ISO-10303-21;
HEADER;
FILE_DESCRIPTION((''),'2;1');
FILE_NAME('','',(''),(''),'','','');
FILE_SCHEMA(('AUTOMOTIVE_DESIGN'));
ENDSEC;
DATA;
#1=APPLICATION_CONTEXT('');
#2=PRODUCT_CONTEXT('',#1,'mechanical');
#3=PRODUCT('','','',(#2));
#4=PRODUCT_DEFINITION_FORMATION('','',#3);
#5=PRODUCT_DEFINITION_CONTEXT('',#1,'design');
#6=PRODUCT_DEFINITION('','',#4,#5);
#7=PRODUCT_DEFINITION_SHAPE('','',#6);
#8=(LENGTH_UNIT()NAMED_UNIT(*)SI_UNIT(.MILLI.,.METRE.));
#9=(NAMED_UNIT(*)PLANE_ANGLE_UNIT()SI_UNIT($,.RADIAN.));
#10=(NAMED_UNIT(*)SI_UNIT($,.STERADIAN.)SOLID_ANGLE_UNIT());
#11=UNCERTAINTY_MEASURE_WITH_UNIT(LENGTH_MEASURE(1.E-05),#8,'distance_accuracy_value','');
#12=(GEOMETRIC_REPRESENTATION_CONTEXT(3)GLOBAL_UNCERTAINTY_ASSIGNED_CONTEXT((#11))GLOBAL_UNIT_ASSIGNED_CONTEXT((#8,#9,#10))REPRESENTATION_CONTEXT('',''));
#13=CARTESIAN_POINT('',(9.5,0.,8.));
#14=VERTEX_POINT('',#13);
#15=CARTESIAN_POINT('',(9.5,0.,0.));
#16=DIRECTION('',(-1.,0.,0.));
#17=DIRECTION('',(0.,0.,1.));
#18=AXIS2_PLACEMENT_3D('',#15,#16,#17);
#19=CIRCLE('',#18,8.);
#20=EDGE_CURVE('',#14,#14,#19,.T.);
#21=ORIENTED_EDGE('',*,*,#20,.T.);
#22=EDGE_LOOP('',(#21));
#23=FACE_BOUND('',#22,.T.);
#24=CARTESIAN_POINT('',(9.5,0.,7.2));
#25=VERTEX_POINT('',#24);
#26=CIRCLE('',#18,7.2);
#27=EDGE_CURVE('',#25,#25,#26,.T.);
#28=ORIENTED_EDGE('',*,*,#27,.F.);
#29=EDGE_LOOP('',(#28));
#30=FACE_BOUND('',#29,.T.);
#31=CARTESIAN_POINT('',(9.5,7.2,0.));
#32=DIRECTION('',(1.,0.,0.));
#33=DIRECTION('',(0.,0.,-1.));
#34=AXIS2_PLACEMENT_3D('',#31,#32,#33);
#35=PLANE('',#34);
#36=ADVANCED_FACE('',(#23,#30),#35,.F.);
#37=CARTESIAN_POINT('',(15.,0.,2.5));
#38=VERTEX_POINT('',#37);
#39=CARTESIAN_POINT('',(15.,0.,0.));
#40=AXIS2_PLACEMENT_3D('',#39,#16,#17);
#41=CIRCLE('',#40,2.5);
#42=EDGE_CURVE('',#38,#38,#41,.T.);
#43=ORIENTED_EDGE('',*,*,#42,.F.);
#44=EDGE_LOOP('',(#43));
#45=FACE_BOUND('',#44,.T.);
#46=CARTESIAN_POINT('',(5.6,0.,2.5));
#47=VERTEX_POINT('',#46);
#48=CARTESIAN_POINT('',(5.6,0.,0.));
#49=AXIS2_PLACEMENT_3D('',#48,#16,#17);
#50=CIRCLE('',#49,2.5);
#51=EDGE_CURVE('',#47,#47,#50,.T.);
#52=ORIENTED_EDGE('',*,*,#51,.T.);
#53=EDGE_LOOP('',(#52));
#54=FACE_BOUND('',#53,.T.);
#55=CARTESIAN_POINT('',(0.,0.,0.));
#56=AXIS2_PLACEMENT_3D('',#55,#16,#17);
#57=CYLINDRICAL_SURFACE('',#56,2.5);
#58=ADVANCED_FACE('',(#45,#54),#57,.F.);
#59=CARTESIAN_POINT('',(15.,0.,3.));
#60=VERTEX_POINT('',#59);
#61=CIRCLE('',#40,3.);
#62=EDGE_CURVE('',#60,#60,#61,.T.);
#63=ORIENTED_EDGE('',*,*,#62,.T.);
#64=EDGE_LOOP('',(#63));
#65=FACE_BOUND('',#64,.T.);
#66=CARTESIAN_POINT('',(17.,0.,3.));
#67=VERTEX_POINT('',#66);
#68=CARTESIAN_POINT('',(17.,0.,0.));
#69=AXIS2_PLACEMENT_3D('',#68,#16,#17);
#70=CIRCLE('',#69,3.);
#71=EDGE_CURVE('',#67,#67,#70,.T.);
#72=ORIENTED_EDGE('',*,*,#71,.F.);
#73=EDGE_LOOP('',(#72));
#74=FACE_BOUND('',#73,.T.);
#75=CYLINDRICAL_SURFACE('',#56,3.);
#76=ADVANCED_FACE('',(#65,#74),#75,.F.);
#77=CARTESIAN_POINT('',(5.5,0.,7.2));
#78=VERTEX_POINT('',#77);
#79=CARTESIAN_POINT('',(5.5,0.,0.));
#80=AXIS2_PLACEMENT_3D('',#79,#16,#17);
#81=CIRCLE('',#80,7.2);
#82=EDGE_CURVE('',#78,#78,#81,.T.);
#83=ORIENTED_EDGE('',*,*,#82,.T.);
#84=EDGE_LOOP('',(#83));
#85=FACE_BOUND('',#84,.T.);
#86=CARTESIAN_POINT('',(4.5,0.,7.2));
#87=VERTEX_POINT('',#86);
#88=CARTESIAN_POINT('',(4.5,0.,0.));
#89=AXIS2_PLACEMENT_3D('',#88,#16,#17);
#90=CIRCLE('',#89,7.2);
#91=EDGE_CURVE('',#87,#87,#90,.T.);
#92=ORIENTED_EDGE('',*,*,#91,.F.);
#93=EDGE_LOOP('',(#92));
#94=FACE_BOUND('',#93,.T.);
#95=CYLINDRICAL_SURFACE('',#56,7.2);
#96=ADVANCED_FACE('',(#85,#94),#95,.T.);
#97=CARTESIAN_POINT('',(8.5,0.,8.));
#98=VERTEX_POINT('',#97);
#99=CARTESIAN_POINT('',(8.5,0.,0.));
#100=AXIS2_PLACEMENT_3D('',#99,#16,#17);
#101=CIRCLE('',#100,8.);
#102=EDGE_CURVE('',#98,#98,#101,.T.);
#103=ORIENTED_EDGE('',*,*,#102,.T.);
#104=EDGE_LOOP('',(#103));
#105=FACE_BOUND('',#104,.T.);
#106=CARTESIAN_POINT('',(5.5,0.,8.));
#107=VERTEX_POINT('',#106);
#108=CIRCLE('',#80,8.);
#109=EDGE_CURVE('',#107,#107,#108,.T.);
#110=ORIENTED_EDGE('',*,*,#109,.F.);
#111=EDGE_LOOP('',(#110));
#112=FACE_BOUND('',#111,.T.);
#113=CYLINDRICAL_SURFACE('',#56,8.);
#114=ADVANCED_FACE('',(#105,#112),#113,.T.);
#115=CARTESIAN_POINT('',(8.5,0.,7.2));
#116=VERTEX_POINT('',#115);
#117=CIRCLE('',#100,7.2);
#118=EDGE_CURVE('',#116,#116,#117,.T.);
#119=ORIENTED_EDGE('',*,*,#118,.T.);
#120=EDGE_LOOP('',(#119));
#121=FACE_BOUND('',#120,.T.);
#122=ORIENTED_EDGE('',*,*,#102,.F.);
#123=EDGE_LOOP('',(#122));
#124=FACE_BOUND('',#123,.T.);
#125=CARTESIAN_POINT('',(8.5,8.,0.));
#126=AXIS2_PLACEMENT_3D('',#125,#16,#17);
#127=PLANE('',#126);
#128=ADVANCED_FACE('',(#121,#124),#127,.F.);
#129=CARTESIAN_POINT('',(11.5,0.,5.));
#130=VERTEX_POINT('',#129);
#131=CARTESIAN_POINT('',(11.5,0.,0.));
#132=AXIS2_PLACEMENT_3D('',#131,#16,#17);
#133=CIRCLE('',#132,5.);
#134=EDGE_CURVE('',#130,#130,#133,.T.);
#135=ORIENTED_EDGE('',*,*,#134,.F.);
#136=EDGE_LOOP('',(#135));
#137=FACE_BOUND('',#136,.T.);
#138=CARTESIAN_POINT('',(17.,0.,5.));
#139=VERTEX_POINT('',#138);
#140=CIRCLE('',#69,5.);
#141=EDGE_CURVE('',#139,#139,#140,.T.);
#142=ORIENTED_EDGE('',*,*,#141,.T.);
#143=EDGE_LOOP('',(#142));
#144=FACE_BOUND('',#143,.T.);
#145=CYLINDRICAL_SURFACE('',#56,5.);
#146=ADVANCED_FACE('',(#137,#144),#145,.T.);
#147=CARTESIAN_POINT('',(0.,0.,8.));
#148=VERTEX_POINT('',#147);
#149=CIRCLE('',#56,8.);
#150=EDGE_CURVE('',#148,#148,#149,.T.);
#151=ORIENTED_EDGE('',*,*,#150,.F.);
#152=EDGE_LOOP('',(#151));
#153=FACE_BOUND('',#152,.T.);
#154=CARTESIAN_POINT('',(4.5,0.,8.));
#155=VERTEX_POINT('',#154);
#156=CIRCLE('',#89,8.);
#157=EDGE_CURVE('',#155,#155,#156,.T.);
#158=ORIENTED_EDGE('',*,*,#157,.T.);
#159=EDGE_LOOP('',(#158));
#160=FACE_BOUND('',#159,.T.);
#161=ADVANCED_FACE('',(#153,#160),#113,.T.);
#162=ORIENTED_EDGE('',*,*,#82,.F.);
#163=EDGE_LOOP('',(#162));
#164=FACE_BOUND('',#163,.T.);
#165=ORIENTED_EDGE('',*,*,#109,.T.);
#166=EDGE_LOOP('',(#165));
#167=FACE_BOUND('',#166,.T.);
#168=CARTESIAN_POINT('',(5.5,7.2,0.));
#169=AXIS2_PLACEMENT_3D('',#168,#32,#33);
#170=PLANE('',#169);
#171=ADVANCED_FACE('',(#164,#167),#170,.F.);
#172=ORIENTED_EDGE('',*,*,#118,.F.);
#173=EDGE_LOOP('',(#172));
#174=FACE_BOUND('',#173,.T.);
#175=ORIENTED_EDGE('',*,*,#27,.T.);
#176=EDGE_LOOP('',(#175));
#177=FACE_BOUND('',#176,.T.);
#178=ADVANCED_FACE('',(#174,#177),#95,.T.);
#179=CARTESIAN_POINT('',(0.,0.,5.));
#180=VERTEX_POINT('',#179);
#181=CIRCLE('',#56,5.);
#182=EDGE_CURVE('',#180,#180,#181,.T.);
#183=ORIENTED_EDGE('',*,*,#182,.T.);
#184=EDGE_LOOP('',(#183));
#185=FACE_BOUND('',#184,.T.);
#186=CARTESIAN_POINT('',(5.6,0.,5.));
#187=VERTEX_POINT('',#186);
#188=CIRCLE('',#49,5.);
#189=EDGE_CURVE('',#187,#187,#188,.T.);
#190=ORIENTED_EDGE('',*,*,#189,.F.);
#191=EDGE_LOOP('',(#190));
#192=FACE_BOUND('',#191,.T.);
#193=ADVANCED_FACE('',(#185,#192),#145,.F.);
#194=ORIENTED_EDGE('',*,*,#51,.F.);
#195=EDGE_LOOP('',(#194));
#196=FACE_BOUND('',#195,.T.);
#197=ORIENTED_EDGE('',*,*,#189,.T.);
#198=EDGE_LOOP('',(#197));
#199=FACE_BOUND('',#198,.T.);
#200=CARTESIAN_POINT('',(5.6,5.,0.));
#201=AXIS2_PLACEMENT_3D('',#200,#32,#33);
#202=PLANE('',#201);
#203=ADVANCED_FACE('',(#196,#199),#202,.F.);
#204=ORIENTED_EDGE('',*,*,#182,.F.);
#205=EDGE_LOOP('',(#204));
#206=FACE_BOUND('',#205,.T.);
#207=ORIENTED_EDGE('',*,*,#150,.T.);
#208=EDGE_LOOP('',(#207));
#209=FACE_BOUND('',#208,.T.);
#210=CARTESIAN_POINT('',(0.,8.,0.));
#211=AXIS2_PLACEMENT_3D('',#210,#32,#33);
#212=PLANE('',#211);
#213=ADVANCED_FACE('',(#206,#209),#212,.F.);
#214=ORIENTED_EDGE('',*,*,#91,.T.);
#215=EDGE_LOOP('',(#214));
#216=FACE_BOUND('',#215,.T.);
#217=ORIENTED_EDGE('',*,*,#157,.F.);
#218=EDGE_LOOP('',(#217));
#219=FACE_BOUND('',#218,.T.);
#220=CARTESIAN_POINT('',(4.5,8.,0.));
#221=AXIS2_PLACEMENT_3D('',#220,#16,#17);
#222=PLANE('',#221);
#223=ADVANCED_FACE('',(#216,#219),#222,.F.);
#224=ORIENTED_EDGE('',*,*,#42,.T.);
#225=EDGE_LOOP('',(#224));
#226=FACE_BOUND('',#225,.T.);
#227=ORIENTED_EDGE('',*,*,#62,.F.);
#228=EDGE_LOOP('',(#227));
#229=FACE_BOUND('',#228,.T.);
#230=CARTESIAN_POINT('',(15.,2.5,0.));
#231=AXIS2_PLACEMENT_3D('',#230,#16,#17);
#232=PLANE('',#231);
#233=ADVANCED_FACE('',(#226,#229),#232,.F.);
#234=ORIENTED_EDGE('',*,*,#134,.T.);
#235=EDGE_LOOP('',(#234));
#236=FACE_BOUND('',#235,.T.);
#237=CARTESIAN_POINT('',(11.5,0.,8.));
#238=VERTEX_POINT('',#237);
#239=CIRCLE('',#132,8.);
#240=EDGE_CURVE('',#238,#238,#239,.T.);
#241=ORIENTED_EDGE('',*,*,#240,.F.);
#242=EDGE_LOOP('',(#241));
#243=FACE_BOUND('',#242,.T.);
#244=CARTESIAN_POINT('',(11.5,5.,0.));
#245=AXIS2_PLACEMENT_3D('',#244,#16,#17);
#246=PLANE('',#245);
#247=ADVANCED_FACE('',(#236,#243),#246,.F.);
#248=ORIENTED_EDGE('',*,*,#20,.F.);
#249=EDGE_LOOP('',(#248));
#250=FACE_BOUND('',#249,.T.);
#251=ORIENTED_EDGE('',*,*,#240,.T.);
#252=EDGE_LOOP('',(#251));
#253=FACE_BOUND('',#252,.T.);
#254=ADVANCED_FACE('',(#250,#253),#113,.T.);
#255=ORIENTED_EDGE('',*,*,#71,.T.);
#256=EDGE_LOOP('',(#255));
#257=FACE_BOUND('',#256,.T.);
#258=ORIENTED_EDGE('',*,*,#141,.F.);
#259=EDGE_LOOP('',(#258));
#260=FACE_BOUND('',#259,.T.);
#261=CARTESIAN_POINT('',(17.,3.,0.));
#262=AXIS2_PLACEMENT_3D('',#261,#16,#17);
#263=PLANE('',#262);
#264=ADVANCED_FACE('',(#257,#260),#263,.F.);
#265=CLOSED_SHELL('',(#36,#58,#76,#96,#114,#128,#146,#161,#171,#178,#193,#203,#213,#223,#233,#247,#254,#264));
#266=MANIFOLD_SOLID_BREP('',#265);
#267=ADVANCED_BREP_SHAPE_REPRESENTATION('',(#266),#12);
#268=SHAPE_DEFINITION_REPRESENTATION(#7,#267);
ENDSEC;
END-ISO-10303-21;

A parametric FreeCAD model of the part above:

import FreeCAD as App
import Part
import Sketcher
Q = App.Units.Quantity


def add_polygon(sketch, points):
    """Adds a closed chain of lines whose ends are joined by coincident constraints."""
    first, n = sketch.GeometryCount, len(points)
    for a, b in zip(points, points[1:] + points[:1]):
        sketch.addGeometry(Part.LineSegment(App.Vector(*a, 0), App.Vector(*b, 0)), False)
    for i in range(n):
        sketch.addConstraint(Sketcher.Constraint("Coincident", first + i, 2, first + (i + 1) % n, 1))

doc = App.newDocument("Part")
body = doc.addObject("PartDesign::Body", "Body")

# Sketch on XY plane
sketch1 = body.newObject("Sketcher::SketchObject", "Sketch")
sketch1.AttachmentSupport = (doc.getObject("XY_Plane"), [""])
sketch1.MapMode = "FlatFace"
add_polygon(sketch1, [(0, 8), (0, 5), (5.6, 5), (5.6, 2.5), (15, 2.5), (15, 3), (17, 3), (17, 5), (11.5, 5), (11.5, 8), (9.5, 8), (9.5, 7.2), (8.5, 7.2), (8.5, 8), (5.5, 8), (5.5, 7.2), (4.5, 7.2), (4.5, 8)])  # lines 0-17
sketch1.addConstraint([
    Sketcher.Constraint("Vertical", 0),
    Sketcher.Constraint("Horizontal", 1),
    Sketcher.Constraint("Vertical", 2),
    Sketcher.Constraint("Horizontal", 3),
    Sketcher.Constraint("Vertical", 4),
    Sketcher.Constraint("Horizontal", 5),
    Sketcher.Constraint("Vertical", 6),
    Sketcher.Constraint("Horizontal", 7),
    Sketcher.Constraint("Vertical", 8),
    Sketcher.Constraint("Horizontal", 9),
    Sketcher.Constraint("Vertical", 10),
    Sketcher.Constraint("Horizontal", 11),
    Sketcher.Constraint("Vertical", 12),
    Sketcher.Constraint("Horizontal", 13),
    Sketcher.Constraint("Vertical", 14),
    Sketcher.Constraint("Horizontal", 15),
    Sketcher.Constraint("Vertical", 16),
    Sketcher.Constraint("Horizontal", 17),
    Sketcher.Constraint("PointOnObject", 0, 2, -2),
    Sketcher.Constraint("Horizontal", 1, 2, 6, 2),
    Sketcher.Constraint("Horizontal", 9, 2, 12, 2),
    Sketcher.Constraint("Horizontal", 11, 2, 14, 2),
    Sketcher.Constraint("Horizontal", 13, 2, 16, 2),
    Sketcher.Constraint("Equal", 5, 9),
    Sketcher.Constraint("Equal", 11, 15),
    Sketcher.Constraint("Equal", 13, 0),
    Sketcher.Constraint("Equal", 9, 6),
    Sketcher.Constraint("DistanceX", 5, 1, 5, 2, Q("2 mm")),
    Sketcher.Constraint("DistanceX", 11, 2, 11, 1, Q("1 mm")),
    Sketcher.Constraint("DistanceX", 13, 2, 13, 1, Q("3 mm")),
    Sketcher.Constraint("DistanceX", 1, 1, 1, 2, Q("5.6 mm")),
    Sketcher.Constraint("DistanceX", 3, 1, 3, 2, Q("9.4 mm")),
    Sketcher.Constraint("DistanceX", 7, 2, 7, 1, Q("5.5 mm")),
    Sketcher.Constraint("DistanceY", 2, 2, 2, 1, Q("2.5 mm")),
    Sketcher.Constraint("DistanceY", 10, 2, 10, 1, Q("0.8 mm")),
    Sketcher.Constraint("DistanceY", -1, 1, 0, 2, Q("5 mm")),
])
revolution = body.newObject("PartDesign::Revolution", "Revolution")
revolution.Profile = sketch1
revolution.ReferenceAxis = (sketch1, ["H_Axis"])
revolution.Angle = 360

doc.recompute()
